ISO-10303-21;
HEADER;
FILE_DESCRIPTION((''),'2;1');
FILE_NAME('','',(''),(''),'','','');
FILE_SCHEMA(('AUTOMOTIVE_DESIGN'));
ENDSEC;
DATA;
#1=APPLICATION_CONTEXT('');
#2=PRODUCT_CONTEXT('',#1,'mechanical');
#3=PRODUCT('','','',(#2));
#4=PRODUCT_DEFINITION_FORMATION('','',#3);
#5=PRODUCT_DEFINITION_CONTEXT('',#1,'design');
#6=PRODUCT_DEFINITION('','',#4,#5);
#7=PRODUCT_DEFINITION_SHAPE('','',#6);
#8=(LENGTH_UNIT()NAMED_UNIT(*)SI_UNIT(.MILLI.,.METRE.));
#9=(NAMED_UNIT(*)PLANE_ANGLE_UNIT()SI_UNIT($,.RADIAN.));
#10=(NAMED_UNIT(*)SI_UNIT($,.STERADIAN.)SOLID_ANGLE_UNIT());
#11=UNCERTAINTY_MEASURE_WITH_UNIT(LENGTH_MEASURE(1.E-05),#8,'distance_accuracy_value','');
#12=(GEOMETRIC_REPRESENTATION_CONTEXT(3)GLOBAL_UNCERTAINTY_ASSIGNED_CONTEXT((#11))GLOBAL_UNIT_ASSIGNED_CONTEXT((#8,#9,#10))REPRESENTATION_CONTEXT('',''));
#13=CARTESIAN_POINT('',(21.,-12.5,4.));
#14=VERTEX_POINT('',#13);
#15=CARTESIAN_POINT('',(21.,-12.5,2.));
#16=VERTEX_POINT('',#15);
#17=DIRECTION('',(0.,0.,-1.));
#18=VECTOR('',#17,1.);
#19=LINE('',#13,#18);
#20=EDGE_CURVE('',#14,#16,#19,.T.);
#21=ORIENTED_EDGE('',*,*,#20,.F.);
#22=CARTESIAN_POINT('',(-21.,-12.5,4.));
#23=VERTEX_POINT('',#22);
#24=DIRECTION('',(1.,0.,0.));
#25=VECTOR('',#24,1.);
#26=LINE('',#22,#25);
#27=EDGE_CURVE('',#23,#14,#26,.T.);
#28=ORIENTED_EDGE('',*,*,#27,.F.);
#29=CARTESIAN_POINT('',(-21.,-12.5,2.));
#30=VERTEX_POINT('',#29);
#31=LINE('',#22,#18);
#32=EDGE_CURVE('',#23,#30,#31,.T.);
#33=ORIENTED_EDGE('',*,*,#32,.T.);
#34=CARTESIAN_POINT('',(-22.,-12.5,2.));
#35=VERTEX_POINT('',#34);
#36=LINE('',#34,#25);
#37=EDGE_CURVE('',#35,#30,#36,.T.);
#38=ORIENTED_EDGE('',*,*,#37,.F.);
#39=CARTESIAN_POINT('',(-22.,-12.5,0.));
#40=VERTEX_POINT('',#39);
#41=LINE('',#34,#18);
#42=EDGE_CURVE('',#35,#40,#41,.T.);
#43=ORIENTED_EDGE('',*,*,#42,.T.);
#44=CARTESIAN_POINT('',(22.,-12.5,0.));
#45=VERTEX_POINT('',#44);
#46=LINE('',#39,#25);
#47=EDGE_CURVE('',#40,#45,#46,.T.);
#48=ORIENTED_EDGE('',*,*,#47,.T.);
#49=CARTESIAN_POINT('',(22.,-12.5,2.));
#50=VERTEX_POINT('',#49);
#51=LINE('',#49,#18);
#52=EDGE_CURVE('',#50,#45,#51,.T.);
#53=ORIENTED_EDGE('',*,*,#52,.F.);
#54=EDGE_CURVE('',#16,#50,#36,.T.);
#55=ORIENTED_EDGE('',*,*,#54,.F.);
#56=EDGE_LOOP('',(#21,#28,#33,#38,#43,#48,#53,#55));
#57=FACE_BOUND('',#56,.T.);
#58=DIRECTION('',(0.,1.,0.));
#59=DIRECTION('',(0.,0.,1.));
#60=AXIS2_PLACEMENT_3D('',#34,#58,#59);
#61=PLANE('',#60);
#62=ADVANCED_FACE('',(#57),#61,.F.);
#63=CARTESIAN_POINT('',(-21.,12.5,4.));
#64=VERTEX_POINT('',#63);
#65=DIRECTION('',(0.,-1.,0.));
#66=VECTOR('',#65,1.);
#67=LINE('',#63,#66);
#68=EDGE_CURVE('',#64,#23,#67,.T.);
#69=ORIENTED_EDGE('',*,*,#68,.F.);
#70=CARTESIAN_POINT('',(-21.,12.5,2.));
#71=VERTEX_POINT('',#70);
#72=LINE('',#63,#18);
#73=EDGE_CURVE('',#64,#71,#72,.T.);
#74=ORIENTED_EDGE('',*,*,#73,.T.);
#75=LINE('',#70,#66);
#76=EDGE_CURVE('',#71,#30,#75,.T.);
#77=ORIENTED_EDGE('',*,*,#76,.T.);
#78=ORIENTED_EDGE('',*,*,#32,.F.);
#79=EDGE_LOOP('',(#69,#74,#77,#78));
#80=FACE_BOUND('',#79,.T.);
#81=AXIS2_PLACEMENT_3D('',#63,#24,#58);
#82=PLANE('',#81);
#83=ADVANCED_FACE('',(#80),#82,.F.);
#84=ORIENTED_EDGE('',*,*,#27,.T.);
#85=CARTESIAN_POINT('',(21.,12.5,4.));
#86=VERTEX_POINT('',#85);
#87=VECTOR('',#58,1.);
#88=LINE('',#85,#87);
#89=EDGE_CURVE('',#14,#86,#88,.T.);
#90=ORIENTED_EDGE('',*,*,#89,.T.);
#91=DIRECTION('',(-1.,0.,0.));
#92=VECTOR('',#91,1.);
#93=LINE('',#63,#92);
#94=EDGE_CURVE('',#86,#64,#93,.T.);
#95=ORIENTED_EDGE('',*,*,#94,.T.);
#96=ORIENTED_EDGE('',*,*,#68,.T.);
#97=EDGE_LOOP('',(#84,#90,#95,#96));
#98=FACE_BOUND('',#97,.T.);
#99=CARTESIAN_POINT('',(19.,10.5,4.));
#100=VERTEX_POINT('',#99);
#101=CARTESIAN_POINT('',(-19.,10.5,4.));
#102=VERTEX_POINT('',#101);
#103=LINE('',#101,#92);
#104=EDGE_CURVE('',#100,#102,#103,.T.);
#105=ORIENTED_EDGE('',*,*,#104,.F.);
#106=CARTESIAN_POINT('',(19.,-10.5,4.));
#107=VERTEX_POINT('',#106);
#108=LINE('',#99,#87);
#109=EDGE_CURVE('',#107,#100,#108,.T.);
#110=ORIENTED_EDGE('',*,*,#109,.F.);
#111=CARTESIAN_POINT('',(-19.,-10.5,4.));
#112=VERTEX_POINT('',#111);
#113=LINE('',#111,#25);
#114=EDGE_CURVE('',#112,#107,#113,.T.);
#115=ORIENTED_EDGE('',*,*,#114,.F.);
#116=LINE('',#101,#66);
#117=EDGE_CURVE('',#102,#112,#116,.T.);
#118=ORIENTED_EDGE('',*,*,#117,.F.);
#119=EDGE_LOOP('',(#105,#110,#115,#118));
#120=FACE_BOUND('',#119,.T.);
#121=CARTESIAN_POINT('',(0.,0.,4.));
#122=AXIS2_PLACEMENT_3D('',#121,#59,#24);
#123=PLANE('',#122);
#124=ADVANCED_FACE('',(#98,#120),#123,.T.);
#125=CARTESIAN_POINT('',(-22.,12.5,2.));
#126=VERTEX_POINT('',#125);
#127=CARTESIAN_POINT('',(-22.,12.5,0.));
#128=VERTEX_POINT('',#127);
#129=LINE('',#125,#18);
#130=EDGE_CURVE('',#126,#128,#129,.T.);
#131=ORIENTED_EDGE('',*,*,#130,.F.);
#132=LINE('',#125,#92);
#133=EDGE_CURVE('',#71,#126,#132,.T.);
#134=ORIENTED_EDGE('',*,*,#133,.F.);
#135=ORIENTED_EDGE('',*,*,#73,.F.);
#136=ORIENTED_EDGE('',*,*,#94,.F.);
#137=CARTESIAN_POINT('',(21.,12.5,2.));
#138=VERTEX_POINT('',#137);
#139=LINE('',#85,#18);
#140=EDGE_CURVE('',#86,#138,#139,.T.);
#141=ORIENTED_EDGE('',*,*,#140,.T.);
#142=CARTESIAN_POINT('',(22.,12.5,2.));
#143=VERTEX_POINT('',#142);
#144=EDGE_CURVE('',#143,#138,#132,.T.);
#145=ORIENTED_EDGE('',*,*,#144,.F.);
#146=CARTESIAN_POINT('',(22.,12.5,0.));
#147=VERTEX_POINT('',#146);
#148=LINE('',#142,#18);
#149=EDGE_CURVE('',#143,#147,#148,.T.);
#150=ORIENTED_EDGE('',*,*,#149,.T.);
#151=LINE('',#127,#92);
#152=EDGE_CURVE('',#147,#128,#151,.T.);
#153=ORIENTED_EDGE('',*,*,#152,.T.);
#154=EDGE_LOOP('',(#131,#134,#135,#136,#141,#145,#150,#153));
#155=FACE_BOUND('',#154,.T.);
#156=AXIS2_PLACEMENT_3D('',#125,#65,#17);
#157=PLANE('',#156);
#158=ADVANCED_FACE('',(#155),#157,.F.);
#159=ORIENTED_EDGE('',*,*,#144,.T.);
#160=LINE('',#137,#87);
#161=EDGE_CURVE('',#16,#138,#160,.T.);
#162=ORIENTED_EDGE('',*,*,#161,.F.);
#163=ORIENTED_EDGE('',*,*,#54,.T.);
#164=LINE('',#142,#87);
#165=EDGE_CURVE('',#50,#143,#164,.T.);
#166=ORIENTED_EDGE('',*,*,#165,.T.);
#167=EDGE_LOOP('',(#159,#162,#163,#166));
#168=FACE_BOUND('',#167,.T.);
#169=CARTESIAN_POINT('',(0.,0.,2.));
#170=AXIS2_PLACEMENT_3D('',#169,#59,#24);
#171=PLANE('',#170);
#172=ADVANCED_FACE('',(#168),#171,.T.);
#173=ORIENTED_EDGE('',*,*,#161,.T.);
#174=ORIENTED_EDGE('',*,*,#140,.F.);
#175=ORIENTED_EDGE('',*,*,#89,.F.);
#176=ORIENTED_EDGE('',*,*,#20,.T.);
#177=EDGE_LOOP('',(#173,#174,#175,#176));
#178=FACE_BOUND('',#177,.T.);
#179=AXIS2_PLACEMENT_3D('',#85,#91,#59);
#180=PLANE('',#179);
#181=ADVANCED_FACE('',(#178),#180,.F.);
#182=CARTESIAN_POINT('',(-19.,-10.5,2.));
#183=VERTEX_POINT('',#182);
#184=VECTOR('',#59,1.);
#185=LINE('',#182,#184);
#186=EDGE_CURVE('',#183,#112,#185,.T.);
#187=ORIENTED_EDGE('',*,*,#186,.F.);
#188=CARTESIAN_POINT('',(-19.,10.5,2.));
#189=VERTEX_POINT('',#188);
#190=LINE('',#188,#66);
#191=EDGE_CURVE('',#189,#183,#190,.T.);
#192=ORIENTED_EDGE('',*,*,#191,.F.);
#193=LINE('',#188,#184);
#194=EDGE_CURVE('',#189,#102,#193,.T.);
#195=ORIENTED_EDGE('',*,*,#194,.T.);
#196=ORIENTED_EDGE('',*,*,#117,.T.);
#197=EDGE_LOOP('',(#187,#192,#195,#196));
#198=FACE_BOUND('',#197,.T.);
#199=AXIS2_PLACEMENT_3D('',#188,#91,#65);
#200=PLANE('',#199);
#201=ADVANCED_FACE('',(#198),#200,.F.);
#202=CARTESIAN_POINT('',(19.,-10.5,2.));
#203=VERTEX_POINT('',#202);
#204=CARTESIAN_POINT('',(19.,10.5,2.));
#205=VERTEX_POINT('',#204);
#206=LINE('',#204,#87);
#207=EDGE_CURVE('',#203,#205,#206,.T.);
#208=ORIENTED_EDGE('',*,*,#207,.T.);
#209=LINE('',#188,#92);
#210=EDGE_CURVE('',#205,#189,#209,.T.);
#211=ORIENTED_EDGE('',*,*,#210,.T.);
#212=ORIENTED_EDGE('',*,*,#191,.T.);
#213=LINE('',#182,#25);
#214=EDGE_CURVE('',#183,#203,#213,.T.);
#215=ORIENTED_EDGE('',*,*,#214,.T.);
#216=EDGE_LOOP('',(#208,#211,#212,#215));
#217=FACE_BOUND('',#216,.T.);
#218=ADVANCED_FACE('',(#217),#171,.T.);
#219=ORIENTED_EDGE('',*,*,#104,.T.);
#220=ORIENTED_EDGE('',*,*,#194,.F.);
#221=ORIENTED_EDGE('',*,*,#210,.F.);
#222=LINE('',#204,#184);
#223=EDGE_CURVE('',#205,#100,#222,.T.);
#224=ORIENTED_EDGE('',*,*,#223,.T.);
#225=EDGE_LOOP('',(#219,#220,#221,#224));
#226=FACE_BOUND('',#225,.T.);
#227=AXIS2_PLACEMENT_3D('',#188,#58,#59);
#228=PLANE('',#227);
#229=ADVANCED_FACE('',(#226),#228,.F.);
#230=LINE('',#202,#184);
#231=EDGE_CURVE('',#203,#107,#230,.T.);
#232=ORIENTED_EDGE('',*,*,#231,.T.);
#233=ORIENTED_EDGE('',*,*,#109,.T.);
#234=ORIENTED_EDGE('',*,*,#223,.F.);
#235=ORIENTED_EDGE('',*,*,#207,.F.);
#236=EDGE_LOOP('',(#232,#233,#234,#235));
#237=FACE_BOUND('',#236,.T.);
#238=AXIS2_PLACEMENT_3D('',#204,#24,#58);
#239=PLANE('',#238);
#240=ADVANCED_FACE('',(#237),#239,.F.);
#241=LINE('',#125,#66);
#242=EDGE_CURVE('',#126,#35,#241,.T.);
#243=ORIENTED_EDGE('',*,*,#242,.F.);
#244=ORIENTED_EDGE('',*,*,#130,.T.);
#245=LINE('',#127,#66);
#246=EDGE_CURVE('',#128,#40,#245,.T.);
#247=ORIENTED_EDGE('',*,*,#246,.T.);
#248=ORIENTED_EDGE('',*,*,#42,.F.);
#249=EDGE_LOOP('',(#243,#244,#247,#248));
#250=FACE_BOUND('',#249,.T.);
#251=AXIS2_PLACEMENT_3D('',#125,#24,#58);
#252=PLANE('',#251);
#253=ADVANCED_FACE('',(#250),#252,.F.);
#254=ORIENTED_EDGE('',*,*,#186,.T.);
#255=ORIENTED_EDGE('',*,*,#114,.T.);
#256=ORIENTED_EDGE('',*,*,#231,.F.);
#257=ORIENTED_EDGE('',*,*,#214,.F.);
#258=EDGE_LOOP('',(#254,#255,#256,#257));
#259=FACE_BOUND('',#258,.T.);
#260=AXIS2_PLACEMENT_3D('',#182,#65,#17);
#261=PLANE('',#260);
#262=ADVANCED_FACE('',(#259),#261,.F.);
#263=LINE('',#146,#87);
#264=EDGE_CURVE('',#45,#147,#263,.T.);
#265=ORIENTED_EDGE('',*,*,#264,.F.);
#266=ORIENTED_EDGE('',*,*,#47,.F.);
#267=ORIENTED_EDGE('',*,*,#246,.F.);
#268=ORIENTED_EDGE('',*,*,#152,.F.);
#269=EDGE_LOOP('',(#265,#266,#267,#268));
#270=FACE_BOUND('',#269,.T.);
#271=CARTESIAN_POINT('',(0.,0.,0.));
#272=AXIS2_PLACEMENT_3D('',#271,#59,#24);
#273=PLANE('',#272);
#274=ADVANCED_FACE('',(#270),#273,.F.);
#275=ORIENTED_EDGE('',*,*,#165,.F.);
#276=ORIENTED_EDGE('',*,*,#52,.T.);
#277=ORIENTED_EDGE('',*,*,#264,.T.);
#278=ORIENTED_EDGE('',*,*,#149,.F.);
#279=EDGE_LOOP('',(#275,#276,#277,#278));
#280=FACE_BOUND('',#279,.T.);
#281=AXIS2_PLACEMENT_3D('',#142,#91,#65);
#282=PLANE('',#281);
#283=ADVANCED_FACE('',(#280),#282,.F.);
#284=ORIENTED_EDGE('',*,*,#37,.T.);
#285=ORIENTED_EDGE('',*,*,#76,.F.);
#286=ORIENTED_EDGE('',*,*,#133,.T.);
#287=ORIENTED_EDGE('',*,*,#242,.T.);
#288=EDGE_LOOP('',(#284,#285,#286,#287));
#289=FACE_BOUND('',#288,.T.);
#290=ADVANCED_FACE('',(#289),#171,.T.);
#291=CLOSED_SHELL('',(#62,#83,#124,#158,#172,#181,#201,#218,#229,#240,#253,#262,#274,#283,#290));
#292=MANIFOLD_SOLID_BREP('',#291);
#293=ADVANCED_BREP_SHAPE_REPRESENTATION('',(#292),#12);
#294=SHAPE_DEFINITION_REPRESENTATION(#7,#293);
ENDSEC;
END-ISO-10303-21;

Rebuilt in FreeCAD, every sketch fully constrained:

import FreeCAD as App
import Part
import Sketcher
from FreeCAD import Vector

doc = App.newDocument("Part")
body = doc.addObject("PartDesign::Body", "Body")

# Sketch on XY plane
sketch1 = body.newObject("Sketcher::SketchObject", "Sketch")
sketch1.AttachmentSupport = (doc.getObject("XY_Plane"), [""])
sketch1.MapMode = "FlatFace"
sketch1.addGeometry([
    Part.LineSegment(Vector(-22, 12, 0), Vector(-22, -12, 0)),
    Part.LineSegment(Vector(-22, -12, 0), Vector(22, -12, 0)),
    Part.LineSegment(Vector(22, -12, 0), Vector(22, 12, 0)),
    Part.LineSegment(Vector(22, 12, 0), Vector(-22, 12, 0)),
], False)
sketch1.addConstraint([
    Sketcher.Constraint("Coincident", 0, 2, 1, 1),
    Sketcher.Constraint("Coincident", 1, 2, 2, 1),
    Sketcher.Constraint("Coincident", 2, 2, 3, 1),
    Sketcher.Constraint("Coincident", 3, 2, 0, 1),
    Sketcher.Constraint("Vertical", 0),
    Sketcher.Constraint("Horizontal", 1),
    Sketcher.Constraint("Vertical", 2),
    Sketcher.Constraint("Horizontal", 3),
    Sketcher.Constraint("Symmetric", 0, 2, 2, 2, -1, 1),
    Sketcher.Constraint("DistanceX", 1, 1, 1, 2, 44.0),
    Sketcher.Constraint("DistanceY", 0, 2, 0, 1, 25.0),
])
pad1 = body.newObject("PartDesign::Pad", "Pad")
pad1.Profile = sketch1
pad1.Length = 2

# Sketch on XY plane
sketch2 = body.newObject("Sketcher::SketchObject", "Sketch001")
sketch2.AttachmentSupport = (doc.getObject("XY_Plane"), [""])
sketch2.MapMode = "FlatFace"
sketch2.AttachmentOffset = App.Placement(Vector(0, 0, 2), App.Rotation())
sketch2.addGeometry([
    Part.LineSegment(Vector(-21, 12, 0), Vector(-21, -12, 0)),
    Part.LineSegment(Vector(-21, -12, 0), Vector(21, -12, 0)),
    Part.LineSegment(Vector(21, -12, 0), Vector(21, 12, 0)),
    Part.LineSegment(Vector(21, 12, 0), Vector(-21, 12, 0)),
], False)
sketch2.addConstraint([
    Sketcher.Constraint("Coincident", 0, 2, 1, 1),
    Sketcher.Constraint("Coincident", 1, 2, 2, 1),
    Sketcher.Constraint("Coincident", 2, 2, 3, 1),
    Sketcher.Constraint("Coincident", 3, 2, 0, 1),
    Sketcher.Constraint("Vertical", 0),
    Sketcher.Constraint("Horizontal", 1),
    Sketcher.Constraint("Vertical", 2),
    Sketcher.Constraint("Horizontal", 3),
    Sketcher.Constraint("Symmetric", 0, 2, 2, 2, -1, 1),
    Sketcher.Constraint("DistanceX", 1, 1, 1, 2, 42.0),
    Sketcher.Constraint("DistanceY", 0, 2, 0, 1, 25.0),
])
pad2 = body.newObject("PartDesign::Pad", "Pad001")
pad2.Profile = sketch2
pad2.Length = 2

# Sketch on XY plane
sketch3 = body.newObject("Sketcher::SketchObject", "Sketch002")
sketch3.AttachmentSupport = (doc.getObject("XY_Plane"), [""])
sketch3.MapMode = "FlatFace"
sketch3.AttachmentOffset = App.Placement(Vector(0, 0, 4), App.Rotation())
sketch3.addGeometry([
    Part.LineSegment(Vector(-19, 10, 0), Vector(-19, -10, 0)),
    Part.LineSegment(Vector(-19, -10, 0), Vector(19, -10, 0)),
    Part.LineSegment(Vector(19, -10, 0), Vector(19, 10, 0)),
    Part.LineSegment(Vector(19, 10, 0), Vector(-19, 10, 0)),
], False)
sketch3.addConstraint([
    Sketcher.Constraint("Coincident", 0, 2, 1, 1),
    Sketcher.Constraint("Coincident", 1, 2, 2, 1),
    Sketcher.Constraint("Coincident", 2, 2, 3, 1),
    Sketcher.Constraint("Coincident", 3, 2, 0, 1),
    Sketcher.Constraint("Vertical", 0),
    Sketcher.Constraint("Horizontal", 1),
    Sketcher.Constraint("Vertical", 2),
    Sketcher.Constraint("Horizontal", 3),
    Sketcher.Constraint("Symmetric", 0, 2, 2, 2, -1, 1),
    Sketcher.Constraint("DistanceX", 1, 1, 1, 2, 38.0),
    Sketcher.Constraint("DistanceY", 0, 2, 0, 1, 21.0),
])
pocket1 = body.newObject("PartDesign::Pocket", "Pocket")
pocket1.Profile = sketch3
pocket1.Length = 2

doc.recompute()
